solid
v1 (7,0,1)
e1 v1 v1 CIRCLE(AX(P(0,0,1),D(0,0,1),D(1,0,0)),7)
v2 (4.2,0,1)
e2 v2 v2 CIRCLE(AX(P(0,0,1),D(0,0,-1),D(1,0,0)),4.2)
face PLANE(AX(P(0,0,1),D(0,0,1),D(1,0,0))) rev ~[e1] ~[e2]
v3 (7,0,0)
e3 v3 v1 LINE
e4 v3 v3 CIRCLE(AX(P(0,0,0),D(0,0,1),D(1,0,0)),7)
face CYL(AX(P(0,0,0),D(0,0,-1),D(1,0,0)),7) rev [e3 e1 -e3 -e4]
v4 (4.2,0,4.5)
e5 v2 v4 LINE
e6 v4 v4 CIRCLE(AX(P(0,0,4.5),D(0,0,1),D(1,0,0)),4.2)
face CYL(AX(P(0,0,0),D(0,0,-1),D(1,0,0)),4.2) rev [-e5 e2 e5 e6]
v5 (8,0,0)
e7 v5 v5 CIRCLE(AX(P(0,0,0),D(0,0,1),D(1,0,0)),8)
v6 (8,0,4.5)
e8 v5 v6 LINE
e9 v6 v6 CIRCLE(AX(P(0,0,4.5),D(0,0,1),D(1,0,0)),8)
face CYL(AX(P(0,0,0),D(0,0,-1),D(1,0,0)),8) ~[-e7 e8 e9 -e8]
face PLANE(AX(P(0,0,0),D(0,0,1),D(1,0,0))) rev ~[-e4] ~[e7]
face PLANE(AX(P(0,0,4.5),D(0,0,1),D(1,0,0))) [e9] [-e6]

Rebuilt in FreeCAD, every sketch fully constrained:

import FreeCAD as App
import Part
import Sketcher

V = App.Vector
Q = App.Units.Quantity

doc = App.newDocument("Part")
body = doc.addObject("PartDesign::Body", "Body")

# Sketch on XY plane
sketch1 = body.newObject("Sketcher::SketchObject", "Sketch")
sketch1.AttachmentSupport = (doc.getObject("XY_Plane"), [""])
sketch1.MapMode = "FlatFace"
sketch1.addGeometry(Part.Circle(V(0, 0, 0), V(0, 0, 1), 7), False)
sketch1.addConstraint([
    Sketcher.Constraint("Coincident", 0, 3, -1, 1),
    Sketcher.Constraint("Diameter", 0, Q("14 mm")),
])
pad1 = body.newObject("PartDesign::Pad", "Pad")
pad1.Profile = sketch1
pad1.Length = 1
body2 = doc.addObject("PartDesign::Body", "Body001")

# Sketch on XY plane
sketch2 = body2.newObject("Sketcher::SketchObject", "Sketch001")
sketch2.AttachmentSupport = (doc.getObject("XY_Plane001"), [""])
sketch2.MapMode = "FlatFace"
sketch2.addGeometry([
    Part.Circle(V(0, 0, 0), V(0, 0, 1), 8),
    Part.Circle(V(0, 0, 0), V(0, 0, 1), 4.2),
], False)
sketch2.addConstraint([
    Sketcher.Constraint("Coincident", 0, 3, -1, 1),
    Sketcher.Constraint("Coincident", 1, 3, -1, 1),
    Sketcher.Constraint("Diameter", 0, Q("16 mm")),
    Sketcher.Constraint("Diameter", 1, Q("8.4 mm")),
])
pad2 = body2.newObject("PartDesign::Pad", "Pad001")
pad2.Profile = sketch2
pad2.Length = 4.5
doc.recompute()

boolean = body2.newObject("PartDesign::Boolean", "Boolean")
boolean.Type = "Cut"
boolean.addObjects([body])

doc.recompute()
